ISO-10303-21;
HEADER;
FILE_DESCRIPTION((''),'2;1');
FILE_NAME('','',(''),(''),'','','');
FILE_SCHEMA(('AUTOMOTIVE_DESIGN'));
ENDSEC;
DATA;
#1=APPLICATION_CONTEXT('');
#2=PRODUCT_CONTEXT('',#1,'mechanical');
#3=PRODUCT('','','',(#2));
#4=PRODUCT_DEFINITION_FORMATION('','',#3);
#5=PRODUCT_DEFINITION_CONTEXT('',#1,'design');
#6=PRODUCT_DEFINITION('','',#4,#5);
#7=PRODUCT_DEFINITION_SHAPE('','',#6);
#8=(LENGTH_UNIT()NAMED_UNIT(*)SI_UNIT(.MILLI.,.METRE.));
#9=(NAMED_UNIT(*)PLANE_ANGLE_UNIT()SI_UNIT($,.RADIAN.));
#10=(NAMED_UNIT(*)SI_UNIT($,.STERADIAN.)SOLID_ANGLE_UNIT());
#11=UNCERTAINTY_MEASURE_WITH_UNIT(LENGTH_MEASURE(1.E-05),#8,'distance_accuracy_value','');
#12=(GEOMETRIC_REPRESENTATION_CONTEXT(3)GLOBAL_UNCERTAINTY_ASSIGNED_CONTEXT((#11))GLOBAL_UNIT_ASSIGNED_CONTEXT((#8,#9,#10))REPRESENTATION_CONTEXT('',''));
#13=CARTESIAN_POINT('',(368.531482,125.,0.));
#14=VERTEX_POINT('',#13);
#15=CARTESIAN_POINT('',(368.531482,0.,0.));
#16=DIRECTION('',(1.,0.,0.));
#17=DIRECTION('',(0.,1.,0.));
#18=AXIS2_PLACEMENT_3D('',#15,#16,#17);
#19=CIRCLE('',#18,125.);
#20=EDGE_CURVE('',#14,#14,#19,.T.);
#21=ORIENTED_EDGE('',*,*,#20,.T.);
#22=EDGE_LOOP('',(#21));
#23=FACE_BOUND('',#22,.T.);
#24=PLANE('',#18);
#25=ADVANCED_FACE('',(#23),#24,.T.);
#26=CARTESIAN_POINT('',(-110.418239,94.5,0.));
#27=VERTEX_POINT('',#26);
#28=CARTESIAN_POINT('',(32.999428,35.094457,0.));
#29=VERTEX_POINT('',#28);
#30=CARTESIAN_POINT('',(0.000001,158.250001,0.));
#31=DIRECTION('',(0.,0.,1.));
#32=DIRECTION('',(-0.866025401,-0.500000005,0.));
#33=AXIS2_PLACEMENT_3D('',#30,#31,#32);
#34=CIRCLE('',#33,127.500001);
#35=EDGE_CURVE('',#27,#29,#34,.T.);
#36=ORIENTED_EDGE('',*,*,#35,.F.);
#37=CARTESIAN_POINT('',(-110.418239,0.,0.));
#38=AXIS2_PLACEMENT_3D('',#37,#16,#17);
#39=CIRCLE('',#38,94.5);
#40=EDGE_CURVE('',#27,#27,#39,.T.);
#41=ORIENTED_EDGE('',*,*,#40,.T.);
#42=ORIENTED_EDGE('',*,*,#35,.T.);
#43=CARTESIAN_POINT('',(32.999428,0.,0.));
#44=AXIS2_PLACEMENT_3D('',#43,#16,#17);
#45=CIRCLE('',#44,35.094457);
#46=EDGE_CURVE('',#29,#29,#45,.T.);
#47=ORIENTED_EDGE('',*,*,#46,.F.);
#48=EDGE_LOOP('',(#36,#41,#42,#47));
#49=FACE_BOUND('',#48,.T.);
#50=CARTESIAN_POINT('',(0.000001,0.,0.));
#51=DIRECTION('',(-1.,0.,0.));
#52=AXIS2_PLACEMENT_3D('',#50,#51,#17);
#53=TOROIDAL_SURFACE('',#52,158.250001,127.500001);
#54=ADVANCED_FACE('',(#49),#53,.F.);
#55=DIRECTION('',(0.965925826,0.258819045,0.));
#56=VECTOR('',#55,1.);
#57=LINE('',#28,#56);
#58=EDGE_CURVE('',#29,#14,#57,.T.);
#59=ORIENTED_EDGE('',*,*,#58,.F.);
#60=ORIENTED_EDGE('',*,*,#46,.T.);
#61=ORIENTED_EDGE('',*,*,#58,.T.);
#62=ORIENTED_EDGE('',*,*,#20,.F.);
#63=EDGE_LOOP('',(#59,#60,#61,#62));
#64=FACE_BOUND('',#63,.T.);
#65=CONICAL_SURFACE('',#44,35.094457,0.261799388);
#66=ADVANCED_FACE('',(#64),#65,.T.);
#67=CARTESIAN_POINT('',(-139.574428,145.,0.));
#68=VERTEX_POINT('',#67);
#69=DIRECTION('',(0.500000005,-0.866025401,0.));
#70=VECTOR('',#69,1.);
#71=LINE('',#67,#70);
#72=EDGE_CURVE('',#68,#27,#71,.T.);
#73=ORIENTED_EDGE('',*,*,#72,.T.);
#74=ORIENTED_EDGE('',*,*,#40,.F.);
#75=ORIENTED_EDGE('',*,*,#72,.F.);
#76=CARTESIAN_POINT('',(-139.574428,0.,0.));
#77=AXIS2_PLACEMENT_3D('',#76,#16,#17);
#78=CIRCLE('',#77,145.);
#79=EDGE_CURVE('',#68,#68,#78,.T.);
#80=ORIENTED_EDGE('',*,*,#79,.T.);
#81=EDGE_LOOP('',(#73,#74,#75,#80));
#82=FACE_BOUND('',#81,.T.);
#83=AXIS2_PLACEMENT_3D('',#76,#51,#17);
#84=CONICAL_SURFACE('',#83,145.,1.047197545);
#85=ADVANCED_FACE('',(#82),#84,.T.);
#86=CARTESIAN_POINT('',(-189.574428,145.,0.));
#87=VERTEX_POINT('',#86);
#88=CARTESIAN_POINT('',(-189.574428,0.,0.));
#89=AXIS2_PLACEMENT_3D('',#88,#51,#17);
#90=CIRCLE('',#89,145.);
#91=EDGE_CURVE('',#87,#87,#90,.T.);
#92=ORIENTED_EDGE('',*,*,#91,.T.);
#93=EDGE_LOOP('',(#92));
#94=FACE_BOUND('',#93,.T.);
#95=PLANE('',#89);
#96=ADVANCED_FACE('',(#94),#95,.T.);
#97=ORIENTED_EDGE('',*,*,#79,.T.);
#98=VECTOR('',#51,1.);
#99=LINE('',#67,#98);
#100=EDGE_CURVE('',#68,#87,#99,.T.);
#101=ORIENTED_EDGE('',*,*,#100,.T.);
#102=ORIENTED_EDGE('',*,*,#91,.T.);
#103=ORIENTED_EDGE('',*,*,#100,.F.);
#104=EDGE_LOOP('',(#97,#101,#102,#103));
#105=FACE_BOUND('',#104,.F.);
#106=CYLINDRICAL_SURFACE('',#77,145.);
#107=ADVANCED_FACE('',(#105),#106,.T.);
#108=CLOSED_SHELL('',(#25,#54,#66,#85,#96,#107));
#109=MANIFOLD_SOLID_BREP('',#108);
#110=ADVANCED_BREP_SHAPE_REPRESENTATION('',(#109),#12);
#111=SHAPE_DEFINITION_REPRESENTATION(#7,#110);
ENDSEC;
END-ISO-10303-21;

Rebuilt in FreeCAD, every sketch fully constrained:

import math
import FreeCAD as App
import Part
import Sketcher
Q = App.Units.Quantity

doc = App.newDocument("Part")
body = doc.addObject("PartDesign::Body", "Body")

sketch1 = body.newObject("Sketcher::SketchObject", "Sketch")
sketch1.AttachmentSupport = (doc.getObject("XY_Plane"), [""])
sketch1.MapMode = "FlatFace"
sketch1.addGeometry([
    Part.ArcOfCircle(Part.Circle(App.Vector(0, 158, 0), App.Vector(0, 0, 1), 128), math.radians(-150), math.radians(-75)),
    Part.LineSegment(App.Vector(-110, 94, 0), App.Vector(-140, 145, 0)),
    Part.LineSegment(App.Vector(-140, 145, 0), App.Vector(-140, 0, 0)),
    Part.LineSegment(App.Vector(-140, 0, 0), App.Vector(369, 0, 0)),
    Part.LineSegment(App.Vector(369, 0, 0), App.Vector(369, 125, 0)),
    Part.LineSegment(App.Vector(369, 125, 0), App.Vector(33, 35, 0)),
], False)
sketch1.addConstraint([
    Sketcher.Constraint("Tangent", 0, 1, 1, 1),
    Sketcher.Constraint("Coincident", 1, 2, 2, 1),
    Sketcher.Constraint("Coincident", 2, 2, 3, 1),
    Sketcher.Constraint("Coincident", 3, 2, 4, 1),
    Sketcher.Constraint("Coincident", 4, 2, 5, 1),
    Sketcher.Constraint("Tangent", 5, 2, 0, 2),
    Sketcher.Constraint("Vertical", 2),
    Sketcher.Constraint("Horizontal", 3),
    Sketcher.Constraint("Vertical", 4),
    Sketcher.Constraint("PointOnObject", 0, 3, -2),
    Sketcher.Constraint("PointOnObject", 2, 2, -1),
    Sketcher.Constraint("Radius", 0, Q("127.500001 mm")),
    Sketcher.Constraint("DistanceY", 2, 2, 2, 1, Q("145 mm")),
    Sketcher.Constraint("DistanceY", 4, 1, 4, 2, Q("125 mm")),
    Sketcher.Constraint("Angle", 1, Q("120 deg")),
    Sketcher.Constraint("Angle", 5, Q("-165 deg")),
    Sketcher.Constraint("DistanceY", -1, 1, 0, 3, Q("158.250001 mm")),
])
revolution = body.newObject("PartDesign::Revolution", "Revolution")
revolution.Profile = sketch1
revolution.ReferenceAxis = (sketch1, ["H_Axis"])
revolution.Angle = 360

sketch2 = body.newObject("Sketcher::SketchObject", "Sketch001")
sketch2.AttachmentSupport = (doc.getObject("YZ_Plane"), [""])
sketch2.MapMode = "FlatFace"
sketch2.AttachmentOffset = App.Placement(App.Vector(0, 0, -139.574428), App.Rotation())
sketch2.addGeometry(Part.Circle(App.Vector(0, 0, 0), App.Vector(0, 0, 1), 145), False)
sketch2.addConstraint([
    Sketcher.Constraint("Coincident", 0, 3, -1, 1),
    Sketcher.Constraint("Diameter", 0, Q("290 mm")),
])
pad1 = body.newObject("PartDesign::Pad", "Pad")
pad1.Profile = sketch2
pad1.Length = 50
pad1.Reversed = True

doc.recompute()
